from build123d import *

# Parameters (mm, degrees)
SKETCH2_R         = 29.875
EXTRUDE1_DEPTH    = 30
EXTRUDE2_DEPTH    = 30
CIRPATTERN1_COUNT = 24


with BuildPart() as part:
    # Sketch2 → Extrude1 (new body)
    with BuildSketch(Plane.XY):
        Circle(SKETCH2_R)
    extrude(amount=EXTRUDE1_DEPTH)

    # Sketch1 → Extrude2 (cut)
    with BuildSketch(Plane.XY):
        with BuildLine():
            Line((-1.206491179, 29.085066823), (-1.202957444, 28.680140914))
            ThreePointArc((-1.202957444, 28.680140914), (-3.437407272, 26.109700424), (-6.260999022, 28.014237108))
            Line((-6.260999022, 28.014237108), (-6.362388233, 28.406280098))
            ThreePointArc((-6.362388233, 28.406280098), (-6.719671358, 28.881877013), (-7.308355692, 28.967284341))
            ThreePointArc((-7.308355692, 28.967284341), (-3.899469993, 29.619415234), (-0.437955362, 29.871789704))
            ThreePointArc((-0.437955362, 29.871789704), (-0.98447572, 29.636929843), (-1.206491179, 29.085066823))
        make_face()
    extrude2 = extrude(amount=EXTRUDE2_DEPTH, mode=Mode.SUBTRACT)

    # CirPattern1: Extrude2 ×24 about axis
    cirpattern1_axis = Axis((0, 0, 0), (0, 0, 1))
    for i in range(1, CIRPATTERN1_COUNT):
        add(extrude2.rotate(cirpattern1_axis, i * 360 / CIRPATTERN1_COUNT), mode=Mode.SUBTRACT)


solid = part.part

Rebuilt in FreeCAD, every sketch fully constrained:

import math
import FreeCAD as App
import Part
import Sketcher
Q = App.Units.Quantity

doc = App.newDocument("Part")
params = doc.addObject("Spreadsheet::Sheet", "Params")
for row, (alias, value) in enumerate([
    ("sketch1_diameter", "59.75 mm"),
    ("pad1_length", "30 mm"),
    ("sketch2_radius", "0.78 mm"),
    ("sketch2_radius2", "2.57 mm"),
    ("pocket1_length", "30 mm"),
], start=1):
    params.set(f"A{row}", alias)
    params.set(f"B{row}", "=" + value)
    params.setAlias(f"B{row}", alias)

body = doc.addObject("PartDesign::Body", "Body")

sketch1 = doc.addObject("Sketcher::SketchObject", "Sketch")
body.addObject(sketch1)
sketch1.AttachmentSupport = (doc.XY_Plane, [""])
sketch1.MapMode = "FlatFace"
sketch1.addGeometry(Part.Circle(App.Vector(0, 0, 0), App.Vector(0, 0, 1), 30), False)
sketch1.addConstraint([
    Sketcher.Constraint("Coincident", 0, 3, -1, 1),
    Sketcher.Constraint("Diameter", 0, Q("59.75 mm")),
])
sketch1.setExpression("Constraints[1]", "Params.sketch1_diameter")
pad1 = doc.addObject("PartDesign::Pad", "Pad")
body.addObject(pad1)
pad1.Profile = sketch1
pad1.setExpression("Length", "Params.pad1_length")

sketch2 = doc.addObject("Sketcher::SketchObject", "Sketch001")
body.addObject(sketch2)
sketch2.AttachmentSupport = (doc.XY_Plane, [""])
sketch2.MapMode = "FlatFace"
sketch2.addGeometry([
    Part.LineSegment(App.Vector(-1.2, 28.68, 0), App.Vector(-1.21, 29.09, 0)),
    Part.ArcOfCircle(Part.Circle(App.Vector(-0.43, 29.09, 0), App.Vector(0, 0, 1), 0.78), math.radians(91), math.radians(180)),
    Part.ArcOfCircle(Part.Circle(App.Vector(0, 0, 0), App.Vector(0, 0, 1), 29.87), math.radians(90.84), math.radians(104.16)),
    Part.ArcOfCircle(Part.Circle(App.Vector(-7.12, 28.21, 0), App.Vector(0, 0, 1), 0.78), math.radians(15), math.radians(104)),
    Part.LineSegment(App.Vector(-6.36, 28.41, 0), App.Vector(-6.26, 28.01, 0)),
    Part.ArcOfCircle(Part.Circle(App.Vector(-3.77, 28.66, 0), App.Vector(0, 0, 1), 2.57), math.radians(-166), math.radians(0)),
], False)
sketch2.addConstraint([
    Sketcher.Constraint("Tangent", 0, 2, 1, 2),
    Sketcher.Constraint("Tangent", 1, 1, 2, 1),
    Sketcher.Constraint("Tangent", 2, 2, 3, 2),
    Sketcher.Constraint("Tangent", 3, 1, 4, 1),
    Sketcher.Constraint("Tangent", 4, 2, 5, 1),
    Sketcher.Constraint("Tangent", 5, 2, 0, 1),
    Sketcher.Constraint("Coincident", 2, 3, -1, 1),
    Sketcher.Constraint("Equal", 1, 3),
    Sketcher.Constraint("Equal", 0, 4),
    Sketcher.Constraint("Radius", 1, Q("0.78 mm")),
    Sketcher.Constraint("Radius", 5, Q("2.57 mm")),
    Sketcher.Constraint("Angle", 0, Q("90.5 deg")),
    Sketcher.Constraint("Angle", 4, Q("-75.5 deg")),
    Sketcher.Constraint("Radius", 2, Q("29.875 mm")),
    Sketcher.Constraint("DistanceX", 4, 2, -1, 1, Q("6.260999 mm")),
])
sketch2.setExpression("Constraints[9]", "Params.sketch2_radius")
sketch2.setExpression("Constraints[10]", "Params.sketch2_radius2")
pocket1 = doc.addObject("PartDesign::Pocket", "Pocket")
body.addObject(pocket1)
pocket1.Profile = sketch2
pocket1.setExpression("Length", "Params.pocket1_length")
pocket1.Reversed = True
doc.recompute()

polarpattern = doc.addObject("PartDesign::PolarPattern", "PolarPattern")
body.addObject(polarpattern)
polarpattern.Originals = [pocket1]
polarpattern.Axis = (doc.Z_Axis, [""])
polarpattern.Angle = 360
polarpattern.Occurrences = 24
body.Tip = polarpattern

doc.recompute()
